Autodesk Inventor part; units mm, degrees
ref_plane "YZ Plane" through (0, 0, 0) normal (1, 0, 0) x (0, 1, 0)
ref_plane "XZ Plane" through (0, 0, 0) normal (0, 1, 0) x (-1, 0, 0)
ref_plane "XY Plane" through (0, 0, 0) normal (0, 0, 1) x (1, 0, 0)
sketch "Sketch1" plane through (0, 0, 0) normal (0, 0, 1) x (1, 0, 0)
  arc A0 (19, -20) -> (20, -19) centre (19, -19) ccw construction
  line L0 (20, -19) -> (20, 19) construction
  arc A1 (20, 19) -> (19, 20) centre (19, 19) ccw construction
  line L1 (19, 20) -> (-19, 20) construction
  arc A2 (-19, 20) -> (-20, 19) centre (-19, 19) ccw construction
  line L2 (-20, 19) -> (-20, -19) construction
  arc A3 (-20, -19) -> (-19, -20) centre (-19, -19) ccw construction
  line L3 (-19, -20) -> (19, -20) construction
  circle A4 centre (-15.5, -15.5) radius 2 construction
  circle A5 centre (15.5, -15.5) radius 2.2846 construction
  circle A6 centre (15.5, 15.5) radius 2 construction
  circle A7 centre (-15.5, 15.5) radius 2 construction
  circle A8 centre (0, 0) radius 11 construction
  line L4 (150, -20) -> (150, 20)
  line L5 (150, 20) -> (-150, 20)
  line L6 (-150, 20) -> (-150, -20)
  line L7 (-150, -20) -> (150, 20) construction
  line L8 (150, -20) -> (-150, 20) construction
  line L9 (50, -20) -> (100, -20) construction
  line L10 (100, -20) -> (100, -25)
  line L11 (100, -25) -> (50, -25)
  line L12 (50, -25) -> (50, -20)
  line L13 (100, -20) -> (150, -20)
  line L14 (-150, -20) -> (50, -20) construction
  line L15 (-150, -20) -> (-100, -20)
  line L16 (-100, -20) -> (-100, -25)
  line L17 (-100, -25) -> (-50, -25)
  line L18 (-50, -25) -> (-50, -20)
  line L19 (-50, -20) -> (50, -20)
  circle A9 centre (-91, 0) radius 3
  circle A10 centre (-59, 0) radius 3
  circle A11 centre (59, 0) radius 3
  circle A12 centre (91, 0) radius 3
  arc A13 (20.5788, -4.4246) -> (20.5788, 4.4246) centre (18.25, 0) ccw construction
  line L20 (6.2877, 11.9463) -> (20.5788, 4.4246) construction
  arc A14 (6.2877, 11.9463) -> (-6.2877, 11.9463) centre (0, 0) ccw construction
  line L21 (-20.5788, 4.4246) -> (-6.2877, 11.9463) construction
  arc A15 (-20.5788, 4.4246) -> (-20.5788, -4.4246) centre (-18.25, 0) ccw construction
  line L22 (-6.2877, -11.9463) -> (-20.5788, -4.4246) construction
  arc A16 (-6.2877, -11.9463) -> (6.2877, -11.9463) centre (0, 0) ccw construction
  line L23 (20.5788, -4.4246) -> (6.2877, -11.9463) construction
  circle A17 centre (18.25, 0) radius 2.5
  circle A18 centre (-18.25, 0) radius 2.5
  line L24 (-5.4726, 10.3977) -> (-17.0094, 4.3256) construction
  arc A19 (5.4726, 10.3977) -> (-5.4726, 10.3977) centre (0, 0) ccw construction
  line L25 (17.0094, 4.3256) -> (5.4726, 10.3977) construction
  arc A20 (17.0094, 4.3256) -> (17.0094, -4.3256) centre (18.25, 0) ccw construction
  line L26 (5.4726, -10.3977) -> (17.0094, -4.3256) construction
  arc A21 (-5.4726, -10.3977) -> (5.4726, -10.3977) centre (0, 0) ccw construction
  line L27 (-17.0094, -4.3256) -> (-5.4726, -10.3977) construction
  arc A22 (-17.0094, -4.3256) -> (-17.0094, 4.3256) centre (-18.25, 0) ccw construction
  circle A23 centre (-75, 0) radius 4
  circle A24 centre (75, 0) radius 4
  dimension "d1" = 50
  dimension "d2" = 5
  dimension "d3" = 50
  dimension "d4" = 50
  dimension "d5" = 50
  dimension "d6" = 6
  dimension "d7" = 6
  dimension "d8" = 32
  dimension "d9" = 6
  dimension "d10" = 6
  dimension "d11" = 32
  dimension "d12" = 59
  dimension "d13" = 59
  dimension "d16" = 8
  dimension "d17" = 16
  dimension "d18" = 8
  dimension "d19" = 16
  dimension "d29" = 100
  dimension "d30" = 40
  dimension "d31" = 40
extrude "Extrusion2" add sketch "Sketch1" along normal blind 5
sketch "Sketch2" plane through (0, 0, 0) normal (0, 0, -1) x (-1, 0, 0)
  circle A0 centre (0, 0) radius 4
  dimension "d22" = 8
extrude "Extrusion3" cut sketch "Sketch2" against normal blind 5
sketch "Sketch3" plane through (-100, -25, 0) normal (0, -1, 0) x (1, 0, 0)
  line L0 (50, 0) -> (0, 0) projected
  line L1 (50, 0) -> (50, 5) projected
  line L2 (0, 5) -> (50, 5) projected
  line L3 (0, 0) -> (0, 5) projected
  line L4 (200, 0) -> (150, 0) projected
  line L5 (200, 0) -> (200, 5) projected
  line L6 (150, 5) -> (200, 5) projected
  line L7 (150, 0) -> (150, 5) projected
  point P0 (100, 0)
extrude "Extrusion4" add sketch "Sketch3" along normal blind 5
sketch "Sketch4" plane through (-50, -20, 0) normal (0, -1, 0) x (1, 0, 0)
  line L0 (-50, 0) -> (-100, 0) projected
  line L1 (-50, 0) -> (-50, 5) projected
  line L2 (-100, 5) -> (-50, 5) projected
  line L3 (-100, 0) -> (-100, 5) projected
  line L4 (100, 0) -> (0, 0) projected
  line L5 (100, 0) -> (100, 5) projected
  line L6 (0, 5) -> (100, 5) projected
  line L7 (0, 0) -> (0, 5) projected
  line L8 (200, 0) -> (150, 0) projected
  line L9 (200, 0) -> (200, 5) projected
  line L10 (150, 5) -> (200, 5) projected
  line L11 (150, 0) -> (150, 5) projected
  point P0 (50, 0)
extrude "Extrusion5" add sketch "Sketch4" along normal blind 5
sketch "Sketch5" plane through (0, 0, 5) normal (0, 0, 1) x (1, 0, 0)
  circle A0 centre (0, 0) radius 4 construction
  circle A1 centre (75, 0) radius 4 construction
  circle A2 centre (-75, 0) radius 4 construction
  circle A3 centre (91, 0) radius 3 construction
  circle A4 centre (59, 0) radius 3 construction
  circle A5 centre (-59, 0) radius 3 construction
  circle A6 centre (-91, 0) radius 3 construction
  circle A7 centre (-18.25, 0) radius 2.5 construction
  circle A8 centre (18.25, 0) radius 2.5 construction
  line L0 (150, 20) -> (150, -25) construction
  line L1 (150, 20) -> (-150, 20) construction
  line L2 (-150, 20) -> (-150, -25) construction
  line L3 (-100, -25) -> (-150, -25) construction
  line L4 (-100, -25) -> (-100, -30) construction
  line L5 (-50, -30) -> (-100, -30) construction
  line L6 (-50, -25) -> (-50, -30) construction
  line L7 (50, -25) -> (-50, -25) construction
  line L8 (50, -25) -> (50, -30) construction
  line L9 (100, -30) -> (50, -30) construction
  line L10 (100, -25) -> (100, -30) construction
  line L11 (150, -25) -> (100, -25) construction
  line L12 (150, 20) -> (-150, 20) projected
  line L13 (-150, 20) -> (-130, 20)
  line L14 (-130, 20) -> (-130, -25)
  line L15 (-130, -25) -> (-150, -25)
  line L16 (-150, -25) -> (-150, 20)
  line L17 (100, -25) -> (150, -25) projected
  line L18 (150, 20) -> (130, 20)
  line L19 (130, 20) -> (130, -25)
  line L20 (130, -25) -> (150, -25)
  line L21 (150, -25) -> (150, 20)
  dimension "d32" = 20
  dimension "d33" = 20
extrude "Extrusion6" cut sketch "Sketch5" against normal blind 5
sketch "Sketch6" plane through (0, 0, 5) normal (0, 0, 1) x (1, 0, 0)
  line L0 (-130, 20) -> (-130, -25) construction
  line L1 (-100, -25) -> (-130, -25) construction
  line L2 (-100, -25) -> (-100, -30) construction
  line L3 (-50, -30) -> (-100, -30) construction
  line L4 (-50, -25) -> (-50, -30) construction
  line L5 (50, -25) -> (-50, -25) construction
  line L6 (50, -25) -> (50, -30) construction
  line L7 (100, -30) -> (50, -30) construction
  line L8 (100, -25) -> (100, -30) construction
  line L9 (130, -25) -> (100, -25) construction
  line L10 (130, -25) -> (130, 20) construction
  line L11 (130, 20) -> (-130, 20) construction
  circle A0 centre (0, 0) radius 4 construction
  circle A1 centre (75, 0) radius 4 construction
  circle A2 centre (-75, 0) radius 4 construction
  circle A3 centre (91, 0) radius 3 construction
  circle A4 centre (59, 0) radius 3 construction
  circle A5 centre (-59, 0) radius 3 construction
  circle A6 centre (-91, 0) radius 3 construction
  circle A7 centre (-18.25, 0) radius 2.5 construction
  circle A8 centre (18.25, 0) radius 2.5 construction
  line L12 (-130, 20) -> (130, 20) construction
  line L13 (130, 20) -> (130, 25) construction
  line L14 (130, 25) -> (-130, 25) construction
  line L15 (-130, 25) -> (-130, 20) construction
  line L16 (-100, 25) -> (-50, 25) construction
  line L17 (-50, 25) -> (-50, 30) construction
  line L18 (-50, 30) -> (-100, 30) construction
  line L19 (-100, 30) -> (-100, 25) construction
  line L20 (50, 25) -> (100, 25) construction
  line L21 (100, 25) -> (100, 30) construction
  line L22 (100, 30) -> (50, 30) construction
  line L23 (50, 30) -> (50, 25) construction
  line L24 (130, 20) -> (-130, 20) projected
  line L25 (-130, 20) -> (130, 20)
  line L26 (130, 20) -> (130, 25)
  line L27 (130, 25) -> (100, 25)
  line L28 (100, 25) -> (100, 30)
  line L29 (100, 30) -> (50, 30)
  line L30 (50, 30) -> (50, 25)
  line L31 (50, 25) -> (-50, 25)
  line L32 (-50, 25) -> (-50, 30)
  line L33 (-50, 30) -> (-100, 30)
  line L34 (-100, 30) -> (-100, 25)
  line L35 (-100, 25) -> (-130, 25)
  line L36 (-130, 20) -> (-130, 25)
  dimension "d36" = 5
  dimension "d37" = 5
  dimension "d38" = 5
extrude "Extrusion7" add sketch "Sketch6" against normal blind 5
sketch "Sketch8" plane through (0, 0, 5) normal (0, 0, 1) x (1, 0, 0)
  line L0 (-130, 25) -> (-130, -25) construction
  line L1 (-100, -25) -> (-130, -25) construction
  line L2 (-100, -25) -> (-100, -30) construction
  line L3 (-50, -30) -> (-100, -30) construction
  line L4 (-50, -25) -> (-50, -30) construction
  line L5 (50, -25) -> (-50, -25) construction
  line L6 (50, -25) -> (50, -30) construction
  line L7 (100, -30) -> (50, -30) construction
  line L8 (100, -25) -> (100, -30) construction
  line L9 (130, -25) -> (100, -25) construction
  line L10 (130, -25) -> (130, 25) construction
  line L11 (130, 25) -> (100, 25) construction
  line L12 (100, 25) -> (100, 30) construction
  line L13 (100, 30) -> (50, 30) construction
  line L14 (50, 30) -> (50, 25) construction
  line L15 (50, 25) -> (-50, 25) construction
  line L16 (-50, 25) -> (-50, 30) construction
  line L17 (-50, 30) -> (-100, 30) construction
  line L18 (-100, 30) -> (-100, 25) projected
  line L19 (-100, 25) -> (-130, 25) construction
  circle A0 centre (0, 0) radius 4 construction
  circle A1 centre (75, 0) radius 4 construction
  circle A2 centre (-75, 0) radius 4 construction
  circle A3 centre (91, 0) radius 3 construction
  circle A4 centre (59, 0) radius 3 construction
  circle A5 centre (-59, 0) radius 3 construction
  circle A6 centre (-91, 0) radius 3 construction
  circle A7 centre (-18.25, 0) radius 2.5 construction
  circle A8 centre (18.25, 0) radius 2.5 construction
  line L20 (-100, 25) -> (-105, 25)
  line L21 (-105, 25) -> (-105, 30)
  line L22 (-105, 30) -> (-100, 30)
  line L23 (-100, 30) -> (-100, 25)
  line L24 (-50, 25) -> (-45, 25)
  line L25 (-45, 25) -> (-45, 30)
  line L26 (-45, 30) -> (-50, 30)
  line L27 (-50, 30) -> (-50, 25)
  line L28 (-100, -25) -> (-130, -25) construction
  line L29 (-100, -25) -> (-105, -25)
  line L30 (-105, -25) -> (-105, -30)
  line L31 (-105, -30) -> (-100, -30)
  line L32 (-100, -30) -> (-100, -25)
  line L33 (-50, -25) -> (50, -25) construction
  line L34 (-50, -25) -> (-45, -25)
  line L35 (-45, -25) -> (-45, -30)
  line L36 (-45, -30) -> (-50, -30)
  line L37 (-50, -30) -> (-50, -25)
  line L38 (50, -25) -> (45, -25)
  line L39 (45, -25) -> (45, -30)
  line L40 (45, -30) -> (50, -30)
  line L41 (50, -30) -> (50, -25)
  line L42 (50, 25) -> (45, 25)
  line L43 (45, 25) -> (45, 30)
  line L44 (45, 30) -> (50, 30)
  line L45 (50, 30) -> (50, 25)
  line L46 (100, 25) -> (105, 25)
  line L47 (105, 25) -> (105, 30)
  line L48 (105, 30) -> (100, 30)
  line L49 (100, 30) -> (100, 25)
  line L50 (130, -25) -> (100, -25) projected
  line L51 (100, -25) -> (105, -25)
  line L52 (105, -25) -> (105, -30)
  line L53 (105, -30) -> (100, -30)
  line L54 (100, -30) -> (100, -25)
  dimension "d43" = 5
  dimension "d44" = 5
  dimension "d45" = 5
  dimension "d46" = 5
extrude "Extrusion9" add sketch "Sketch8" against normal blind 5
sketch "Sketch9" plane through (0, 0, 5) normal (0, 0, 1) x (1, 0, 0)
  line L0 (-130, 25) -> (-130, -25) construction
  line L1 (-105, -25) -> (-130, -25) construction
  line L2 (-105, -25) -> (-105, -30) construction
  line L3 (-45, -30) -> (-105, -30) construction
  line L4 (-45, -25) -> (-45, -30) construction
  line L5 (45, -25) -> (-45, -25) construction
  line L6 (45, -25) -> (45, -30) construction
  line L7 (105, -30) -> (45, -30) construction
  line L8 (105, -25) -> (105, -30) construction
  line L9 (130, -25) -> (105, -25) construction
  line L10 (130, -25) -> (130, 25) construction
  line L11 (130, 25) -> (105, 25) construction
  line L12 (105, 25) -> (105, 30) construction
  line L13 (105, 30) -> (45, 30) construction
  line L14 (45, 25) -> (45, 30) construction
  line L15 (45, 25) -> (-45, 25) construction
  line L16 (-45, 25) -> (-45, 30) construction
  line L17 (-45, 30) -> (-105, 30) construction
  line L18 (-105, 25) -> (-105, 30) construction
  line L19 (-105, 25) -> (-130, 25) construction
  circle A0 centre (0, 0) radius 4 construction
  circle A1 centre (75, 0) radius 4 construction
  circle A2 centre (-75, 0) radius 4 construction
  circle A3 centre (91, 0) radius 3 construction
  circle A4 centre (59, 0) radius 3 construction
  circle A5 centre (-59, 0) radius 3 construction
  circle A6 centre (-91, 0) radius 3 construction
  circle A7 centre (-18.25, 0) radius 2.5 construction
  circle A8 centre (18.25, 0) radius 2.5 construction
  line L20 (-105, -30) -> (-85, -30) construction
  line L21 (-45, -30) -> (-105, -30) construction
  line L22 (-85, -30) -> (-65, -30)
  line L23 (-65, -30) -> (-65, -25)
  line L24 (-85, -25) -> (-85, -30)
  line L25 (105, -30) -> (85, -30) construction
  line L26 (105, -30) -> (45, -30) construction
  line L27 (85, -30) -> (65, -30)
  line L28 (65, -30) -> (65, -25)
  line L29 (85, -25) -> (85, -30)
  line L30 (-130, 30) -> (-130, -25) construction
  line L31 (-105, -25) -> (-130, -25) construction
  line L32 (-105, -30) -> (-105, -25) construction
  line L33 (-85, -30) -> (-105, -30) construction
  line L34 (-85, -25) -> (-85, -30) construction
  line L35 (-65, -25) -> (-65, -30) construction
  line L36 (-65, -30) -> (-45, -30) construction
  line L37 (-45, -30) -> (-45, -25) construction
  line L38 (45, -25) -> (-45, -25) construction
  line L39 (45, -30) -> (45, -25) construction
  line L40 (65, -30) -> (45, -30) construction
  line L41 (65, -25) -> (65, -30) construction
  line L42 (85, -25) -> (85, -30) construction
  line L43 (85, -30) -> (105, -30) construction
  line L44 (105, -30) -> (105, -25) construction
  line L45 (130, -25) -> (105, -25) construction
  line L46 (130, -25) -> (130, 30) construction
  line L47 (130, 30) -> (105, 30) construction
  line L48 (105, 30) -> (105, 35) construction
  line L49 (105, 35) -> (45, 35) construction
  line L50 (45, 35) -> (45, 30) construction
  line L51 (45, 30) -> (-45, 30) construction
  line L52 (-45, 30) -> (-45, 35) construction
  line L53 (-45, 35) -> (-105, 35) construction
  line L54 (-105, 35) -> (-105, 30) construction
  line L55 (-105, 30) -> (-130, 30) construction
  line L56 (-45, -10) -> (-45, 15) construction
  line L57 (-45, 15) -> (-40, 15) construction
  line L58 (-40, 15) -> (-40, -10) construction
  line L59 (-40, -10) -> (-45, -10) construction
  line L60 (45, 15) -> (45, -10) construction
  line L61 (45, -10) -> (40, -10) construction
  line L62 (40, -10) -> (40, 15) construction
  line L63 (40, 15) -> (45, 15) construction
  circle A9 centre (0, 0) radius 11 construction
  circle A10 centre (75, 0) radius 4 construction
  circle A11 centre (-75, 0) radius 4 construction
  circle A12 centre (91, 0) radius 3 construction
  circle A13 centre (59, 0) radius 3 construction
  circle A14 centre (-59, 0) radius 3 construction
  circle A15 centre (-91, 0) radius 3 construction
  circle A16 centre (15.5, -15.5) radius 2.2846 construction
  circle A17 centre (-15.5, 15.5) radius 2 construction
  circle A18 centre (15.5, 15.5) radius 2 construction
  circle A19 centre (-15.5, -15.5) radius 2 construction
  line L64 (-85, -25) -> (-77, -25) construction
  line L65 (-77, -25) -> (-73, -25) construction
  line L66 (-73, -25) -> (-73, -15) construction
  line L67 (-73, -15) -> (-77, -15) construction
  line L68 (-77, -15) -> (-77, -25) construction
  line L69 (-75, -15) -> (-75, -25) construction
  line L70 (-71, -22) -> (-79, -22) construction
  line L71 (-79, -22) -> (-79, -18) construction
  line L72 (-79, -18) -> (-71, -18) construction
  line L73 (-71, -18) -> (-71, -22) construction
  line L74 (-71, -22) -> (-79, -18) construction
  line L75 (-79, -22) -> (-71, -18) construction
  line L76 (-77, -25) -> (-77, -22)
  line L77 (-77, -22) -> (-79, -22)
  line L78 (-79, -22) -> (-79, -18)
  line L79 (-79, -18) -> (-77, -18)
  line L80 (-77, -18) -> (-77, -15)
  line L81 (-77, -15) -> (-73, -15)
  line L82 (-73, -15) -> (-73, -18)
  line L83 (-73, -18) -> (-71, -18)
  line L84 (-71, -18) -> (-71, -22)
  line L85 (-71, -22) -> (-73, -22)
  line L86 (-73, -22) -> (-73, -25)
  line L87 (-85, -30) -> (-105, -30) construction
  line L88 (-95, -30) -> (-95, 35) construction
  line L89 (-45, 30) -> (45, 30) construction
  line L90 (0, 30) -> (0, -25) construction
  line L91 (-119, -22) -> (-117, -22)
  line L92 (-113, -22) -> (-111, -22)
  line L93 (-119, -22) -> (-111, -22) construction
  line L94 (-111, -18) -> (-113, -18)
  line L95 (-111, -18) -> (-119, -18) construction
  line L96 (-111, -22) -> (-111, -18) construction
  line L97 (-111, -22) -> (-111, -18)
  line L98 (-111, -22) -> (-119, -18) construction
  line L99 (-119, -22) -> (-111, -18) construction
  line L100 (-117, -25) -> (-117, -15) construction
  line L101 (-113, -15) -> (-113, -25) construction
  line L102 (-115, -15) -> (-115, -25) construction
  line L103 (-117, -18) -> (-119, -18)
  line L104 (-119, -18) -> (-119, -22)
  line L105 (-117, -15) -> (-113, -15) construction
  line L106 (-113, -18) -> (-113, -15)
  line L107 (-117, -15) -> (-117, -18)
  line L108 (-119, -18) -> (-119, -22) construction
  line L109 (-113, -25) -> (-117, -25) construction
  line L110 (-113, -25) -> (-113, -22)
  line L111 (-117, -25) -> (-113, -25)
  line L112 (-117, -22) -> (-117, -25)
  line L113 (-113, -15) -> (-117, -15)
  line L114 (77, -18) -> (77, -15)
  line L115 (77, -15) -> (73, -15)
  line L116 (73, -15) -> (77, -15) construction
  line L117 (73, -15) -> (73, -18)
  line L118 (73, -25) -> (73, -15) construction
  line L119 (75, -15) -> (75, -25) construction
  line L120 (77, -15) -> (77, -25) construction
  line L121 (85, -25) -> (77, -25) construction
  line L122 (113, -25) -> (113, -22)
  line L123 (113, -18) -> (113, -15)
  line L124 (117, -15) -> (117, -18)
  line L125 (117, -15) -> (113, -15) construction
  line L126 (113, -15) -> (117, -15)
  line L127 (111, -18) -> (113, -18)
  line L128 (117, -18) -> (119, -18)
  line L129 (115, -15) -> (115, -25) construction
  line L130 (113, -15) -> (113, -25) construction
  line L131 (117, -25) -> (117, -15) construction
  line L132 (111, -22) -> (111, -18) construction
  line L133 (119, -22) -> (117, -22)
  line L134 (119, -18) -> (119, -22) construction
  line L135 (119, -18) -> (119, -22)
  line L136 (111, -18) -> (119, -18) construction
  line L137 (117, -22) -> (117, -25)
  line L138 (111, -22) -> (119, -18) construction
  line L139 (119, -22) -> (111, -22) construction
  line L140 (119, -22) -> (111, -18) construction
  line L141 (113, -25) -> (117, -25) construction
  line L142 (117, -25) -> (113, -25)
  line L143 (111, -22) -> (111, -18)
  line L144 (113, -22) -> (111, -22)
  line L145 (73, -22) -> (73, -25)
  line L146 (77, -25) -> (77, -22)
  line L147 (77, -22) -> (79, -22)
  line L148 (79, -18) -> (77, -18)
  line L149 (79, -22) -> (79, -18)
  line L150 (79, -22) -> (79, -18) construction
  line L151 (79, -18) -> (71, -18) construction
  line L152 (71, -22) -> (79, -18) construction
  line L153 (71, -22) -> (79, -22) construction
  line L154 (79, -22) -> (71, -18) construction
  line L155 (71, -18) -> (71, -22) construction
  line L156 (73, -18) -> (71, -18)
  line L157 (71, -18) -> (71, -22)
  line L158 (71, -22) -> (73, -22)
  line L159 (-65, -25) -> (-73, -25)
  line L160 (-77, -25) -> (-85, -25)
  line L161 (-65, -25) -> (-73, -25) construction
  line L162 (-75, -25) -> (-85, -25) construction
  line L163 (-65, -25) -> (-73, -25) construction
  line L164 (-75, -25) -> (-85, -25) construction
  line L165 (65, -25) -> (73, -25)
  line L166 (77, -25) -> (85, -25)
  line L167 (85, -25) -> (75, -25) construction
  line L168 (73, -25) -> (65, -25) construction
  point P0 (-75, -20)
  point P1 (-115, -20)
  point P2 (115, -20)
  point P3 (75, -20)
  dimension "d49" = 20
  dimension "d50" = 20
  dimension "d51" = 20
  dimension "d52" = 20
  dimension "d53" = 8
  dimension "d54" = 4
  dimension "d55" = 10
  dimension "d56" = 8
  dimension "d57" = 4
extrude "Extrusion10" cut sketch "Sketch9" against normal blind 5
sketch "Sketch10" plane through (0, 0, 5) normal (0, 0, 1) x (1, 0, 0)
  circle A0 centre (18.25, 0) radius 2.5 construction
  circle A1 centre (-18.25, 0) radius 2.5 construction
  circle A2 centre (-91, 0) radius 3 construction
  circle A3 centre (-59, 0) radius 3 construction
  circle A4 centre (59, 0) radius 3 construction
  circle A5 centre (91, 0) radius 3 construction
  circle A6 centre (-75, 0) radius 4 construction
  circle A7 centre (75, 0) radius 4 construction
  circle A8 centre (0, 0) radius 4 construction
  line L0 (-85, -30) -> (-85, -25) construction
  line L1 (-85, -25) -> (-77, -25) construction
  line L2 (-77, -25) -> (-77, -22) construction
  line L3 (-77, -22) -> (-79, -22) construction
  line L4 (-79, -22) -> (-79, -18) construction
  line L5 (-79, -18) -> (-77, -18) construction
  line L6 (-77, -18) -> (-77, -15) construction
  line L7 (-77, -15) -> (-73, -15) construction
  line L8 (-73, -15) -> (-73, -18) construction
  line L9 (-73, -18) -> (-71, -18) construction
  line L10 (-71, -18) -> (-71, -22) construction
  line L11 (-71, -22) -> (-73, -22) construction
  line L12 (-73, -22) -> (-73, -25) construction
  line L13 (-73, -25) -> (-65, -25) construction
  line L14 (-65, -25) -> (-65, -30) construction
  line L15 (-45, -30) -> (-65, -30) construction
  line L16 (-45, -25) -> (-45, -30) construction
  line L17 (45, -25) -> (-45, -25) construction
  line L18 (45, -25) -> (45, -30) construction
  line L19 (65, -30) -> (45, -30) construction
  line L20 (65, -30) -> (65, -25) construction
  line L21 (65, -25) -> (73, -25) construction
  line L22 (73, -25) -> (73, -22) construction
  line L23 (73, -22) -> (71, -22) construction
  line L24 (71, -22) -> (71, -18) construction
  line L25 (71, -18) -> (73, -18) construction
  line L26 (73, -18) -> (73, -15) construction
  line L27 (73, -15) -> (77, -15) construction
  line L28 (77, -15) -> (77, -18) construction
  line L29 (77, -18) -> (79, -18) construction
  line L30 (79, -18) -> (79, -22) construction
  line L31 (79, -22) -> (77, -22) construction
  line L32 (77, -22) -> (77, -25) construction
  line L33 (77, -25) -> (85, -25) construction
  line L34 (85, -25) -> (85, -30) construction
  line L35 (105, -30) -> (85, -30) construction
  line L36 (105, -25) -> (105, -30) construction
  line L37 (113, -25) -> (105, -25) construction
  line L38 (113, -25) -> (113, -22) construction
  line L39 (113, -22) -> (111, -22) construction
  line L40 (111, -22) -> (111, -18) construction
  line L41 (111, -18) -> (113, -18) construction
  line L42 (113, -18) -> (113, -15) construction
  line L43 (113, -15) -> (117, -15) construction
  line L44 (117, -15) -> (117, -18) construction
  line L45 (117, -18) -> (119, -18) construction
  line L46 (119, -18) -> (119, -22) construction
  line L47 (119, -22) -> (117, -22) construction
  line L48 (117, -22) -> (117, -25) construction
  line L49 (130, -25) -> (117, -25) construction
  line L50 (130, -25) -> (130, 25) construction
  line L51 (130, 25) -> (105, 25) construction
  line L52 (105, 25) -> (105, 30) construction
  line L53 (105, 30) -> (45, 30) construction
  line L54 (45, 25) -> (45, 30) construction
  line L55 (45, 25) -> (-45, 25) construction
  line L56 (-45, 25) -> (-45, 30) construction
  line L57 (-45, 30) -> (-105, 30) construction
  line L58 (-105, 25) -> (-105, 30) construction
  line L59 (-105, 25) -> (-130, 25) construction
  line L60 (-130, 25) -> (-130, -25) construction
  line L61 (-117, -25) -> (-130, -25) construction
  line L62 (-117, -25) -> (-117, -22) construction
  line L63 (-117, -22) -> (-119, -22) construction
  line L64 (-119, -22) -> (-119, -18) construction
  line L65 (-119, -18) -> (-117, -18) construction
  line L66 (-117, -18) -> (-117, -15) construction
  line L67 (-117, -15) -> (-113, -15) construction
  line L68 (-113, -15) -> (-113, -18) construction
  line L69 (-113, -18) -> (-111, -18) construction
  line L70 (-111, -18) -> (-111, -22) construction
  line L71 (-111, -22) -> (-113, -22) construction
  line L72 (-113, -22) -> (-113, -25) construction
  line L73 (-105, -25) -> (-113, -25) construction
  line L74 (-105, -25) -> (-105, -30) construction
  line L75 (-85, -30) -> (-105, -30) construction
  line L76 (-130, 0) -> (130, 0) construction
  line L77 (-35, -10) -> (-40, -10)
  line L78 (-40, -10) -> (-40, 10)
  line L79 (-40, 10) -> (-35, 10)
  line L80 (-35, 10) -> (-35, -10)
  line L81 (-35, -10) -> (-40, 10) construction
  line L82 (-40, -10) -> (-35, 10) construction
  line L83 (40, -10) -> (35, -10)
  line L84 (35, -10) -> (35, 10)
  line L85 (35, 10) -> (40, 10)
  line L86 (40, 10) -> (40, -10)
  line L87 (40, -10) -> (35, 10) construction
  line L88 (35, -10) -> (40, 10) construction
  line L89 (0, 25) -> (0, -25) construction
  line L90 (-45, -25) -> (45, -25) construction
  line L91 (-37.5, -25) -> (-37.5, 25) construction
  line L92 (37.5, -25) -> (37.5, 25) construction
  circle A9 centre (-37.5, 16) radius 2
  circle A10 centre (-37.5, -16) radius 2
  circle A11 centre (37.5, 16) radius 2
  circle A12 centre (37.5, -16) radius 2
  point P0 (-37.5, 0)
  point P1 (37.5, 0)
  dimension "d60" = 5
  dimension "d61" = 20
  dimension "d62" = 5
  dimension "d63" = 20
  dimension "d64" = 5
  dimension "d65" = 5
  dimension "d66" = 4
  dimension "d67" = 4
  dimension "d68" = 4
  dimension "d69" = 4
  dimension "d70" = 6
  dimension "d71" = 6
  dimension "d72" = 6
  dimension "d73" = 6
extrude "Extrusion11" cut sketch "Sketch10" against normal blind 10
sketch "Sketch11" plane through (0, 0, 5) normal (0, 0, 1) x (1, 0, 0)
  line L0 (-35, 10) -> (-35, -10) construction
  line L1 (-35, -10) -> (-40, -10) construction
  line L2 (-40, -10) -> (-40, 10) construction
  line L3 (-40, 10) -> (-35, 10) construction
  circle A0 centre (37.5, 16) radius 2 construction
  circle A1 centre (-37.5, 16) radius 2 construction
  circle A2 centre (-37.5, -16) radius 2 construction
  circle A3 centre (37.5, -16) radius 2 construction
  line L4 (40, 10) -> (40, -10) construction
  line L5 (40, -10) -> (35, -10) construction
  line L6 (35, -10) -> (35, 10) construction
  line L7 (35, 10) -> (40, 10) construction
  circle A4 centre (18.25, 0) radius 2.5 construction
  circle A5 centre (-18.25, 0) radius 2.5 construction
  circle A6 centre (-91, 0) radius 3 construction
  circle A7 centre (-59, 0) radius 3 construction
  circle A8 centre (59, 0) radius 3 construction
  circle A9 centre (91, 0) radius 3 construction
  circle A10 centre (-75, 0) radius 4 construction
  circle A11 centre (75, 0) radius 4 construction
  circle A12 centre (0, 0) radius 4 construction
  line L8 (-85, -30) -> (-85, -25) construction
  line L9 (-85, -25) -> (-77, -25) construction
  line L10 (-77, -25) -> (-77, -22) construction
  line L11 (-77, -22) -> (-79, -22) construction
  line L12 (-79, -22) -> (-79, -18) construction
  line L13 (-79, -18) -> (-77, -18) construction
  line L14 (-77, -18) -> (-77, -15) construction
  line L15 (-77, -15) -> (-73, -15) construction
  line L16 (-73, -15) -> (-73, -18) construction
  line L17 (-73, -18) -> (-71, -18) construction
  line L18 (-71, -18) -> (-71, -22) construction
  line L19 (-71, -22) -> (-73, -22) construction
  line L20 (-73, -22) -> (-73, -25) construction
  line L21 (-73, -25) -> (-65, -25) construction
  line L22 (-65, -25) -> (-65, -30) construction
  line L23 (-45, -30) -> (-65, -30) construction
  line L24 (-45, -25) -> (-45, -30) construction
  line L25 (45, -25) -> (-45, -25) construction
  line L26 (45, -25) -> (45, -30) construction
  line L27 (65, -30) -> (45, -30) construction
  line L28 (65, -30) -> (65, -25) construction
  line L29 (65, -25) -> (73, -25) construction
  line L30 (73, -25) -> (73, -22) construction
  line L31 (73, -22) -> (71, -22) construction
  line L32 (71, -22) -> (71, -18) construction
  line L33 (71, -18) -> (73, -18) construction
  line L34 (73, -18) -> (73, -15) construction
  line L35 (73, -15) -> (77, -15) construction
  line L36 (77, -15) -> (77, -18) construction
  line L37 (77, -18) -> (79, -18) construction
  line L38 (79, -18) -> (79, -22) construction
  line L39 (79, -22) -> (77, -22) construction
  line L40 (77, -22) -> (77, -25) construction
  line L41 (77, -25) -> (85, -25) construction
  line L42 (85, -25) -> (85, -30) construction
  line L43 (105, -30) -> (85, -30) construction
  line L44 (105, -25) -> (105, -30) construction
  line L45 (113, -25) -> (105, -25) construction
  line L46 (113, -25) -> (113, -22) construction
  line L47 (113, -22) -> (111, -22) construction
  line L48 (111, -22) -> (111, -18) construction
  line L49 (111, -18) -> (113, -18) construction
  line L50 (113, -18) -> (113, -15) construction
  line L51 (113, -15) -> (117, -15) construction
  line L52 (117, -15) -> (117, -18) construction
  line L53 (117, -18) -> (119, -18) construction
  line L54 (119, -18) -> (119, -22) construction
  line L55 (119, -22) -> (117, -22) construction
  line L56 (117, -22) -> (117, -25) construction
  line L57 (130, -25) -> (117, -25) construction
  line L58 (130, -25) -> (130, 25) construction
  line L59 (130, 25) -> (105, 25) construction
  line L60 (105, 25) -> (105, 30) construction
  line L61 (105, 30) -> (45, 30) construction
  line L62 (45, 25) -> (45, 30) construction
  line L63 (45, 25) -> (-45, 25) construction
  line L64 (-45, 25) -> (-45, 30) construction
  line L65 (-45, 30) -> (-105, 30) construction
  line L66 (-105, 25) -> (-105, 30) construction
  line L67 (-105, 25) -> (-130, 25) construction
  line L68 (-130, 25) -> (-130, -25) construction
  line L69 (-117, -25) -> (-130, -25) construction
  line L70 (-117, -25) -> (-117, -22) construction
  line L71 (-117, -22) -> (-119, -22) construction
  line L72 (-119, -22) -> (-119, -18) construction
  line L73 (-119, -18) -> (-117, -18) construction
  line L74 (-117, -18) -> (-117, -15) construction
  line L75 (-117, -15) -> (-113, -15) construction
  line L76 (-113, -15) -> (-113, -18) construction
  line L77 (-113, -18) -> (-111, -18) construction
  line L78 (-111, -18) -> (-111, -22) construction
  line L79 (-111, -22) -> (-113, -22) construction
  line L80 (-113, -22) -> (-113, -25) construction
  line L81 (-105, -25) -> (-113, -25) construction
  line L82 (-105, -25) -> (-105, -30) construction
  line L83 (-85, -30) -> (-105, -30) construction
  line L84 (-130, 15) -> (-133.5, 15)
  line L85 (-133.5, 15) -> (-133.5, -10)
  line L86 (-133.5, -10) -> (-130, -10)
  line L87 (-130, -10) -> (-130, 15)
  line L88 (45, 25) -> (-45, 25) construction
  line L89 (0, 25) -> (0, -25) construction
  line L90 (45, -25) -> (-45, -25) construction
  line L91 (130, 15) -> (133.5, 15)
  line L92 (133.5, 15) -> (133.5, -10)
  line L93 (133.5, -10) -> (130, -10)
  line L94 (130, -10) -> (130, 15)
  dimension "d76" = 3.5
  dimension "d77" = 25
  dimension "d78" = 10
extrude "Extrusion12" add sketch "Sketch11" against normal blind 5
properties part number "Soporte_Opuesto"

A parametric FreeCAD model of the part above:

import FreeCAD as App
import Part
import Sketcher

V = App.Vector


def add_polygon(sketch, points):
    """Adds a closed chain of lines whose ends are joined by coincident constraints."""
    first, n = sketch.GeometryCount, len(points)
    for a, b in zip(points, points[1:] + points[:1]):
        sketch.addGeometry(Part.LineSegment(App.Vector(*a, 0), App.Vector(*b, 0)), False)
    for i in range(n):
        sketch.addConstraint(Sketcher.Constraint("Coincident", first + i, 2, first + (i + 1) % n, 1))

doc = App.newDocument("Part")
params = doc.addObject("Spreadsheet::Sheet", "Params")
for row, (alias, value) in enumerate([
    ("sketch1_diameter", "6 mm"),
    ("sketch1_diameter2", "8 mm"),
    ("sketch1_diameter3", "5 mm"),
    ("sketch1_width", "50 mm"),
    ("sketch1_width2", "100 mm"),
    ("pad1_length", "5 mm"),
    ("sketch2_diameter", "8 mm"),
    ("pocket1_length", "5 mm"),
    ("sketch3_width", "50 mm"),
    ("sketch3_height", "5 mm"),
    ("pad2_length", "5 mm"),
    ("sketch4_width", "50 mm"),
    ("sketch4_width2", "100 mm"),
    ("sketch4_height", "5 mm"),
    ("pad3_length", "5 mm"),
    ("sketch5_width", "20 mm"),
    ("sketch5_height", "45 mm"),
    ("pocket2_length", "5 mm"),
    ("sketch6_height", "5 mm"),
    ("sketch6_width", "260 mm"),
    ("sketch6_width2", "30 mm"),
    ("sketch6_width3", "50 mm"),
    ("pad4_length", "5 mm"),
    ("sketch7_width", "5 mm"),
    ("pad5_length", "5 mm"),
    ("sketch8_width", "20 mm"),
    ("sketch8_width2", "8 mm"),
    ("pocket3_length", "5 mm"),
    ("sketch9_diameter", "4 mm"),
    ("sketch9_width", "5 mm"),
    ("sketch9_height", "20 mm"),
    ("pocket4_length", "10 mm"),
    ("sketch10_height", "25 mm"),
    ("sketch10_width", "3.5 mm"),
    ("pad6_length", "5 mm"),
], start=1):
    params.set(f"A{row}", alias)
    params.set(f"B{row}", "=" + value)
    params.setAlias(f"B{row}", alias)

body = doc.addObject("PartDesign::Body", "Body")

# Sketch on XY plane
sketch1 = body.newObject("Sketcher::SketchObject", "Sketch")
sketch1.AttachmentSupport = (doc.getObject("XY_Plane"), [""])
sketch1.MapMode = "FlatFace"
add_polygon(sketch1, [(100, -20), (150, -20), (150, 20), (-150, 20), (-150, -20), (-100, -20), (-100, -25), (-50, -25), (-50, -20), (50, -20), (50, -25), (100, -25)])  # lines 0-11
sketch1.addGeometry(Part.Circle(V(-91, 0, 0), V(0, 0, 1), 3), False)  # 12
sketch1.addGeometry(Part.Circle(V(-75, 0, 0), V(0, 0, 1), 4), False)  # 13
sketch1.addGeometry(Part.Circle(V(-59, 0, 0), V(0, 0, 1), 3), False)  # 14
sketch1.addGeometry(Part.Circle(V(-18.2, 0, 0), V(0, 0, 1), 2.5), False)  # 15
sketch1.addGeometry(Part.Circle(V(18.2, 0, 0), V(0, 0, 1), 2.5), False)  # 16
sketch1.addGeometry(Part.Circle(V(59, 0, 0), V(0, 0, 1), 3), False)  # 17
sketch1.addGeometry(Part.Circle(V(75, 0, 0), V(0, 0, 1), 4), False)  # 18
sketch1.addGeometry(Part.Circle(V(91, 0, 0), V(0, 0, 1), 3), False)  # 19
sketch1.addConstraint([
    Sketcher.Constraint("Horizontal", 0),
    Sketcher.Constraint("Vertical", 1),
    Sketcher.Constraint("Horizontal", 2),
    Sketcher.Constraint("Vertical", 3),
    Sketcher.Constraint("Horizontal", 4),
    Sketcher.Constraint("Vertical", 5),
    Sketcher.Constraint("Horizontal", 6),
    Sketcher.Constraint("Vertical", 7),
    Sketcher.Constraint("Horizontal", 8),
    Sketcher.Constraint("Vertical", 9),
    Sketcher.Constraint("Horizontal", 10),
    Sketcher.Constraint("Vertical", 11),
    Sketcher.Constraint("Equal", 12, 14),
    Sketcher.Constraint("Equal", 15, 16),
    Sketcher.Constraint("Equal", 14, 17),
    Sketcher.Constraint("Equal", 13, 18),
    Sketcher.Constraint("Equal", 17, 19),
    Sketcher.Constraint("Symmetric", 15, 3, 16, 3, -1, 1),
    Sketcher.Constraint("Symmetric", 14, 3, 17, 3, -1, 1),
    Sketcher.Constraint("Symmetric", 13, 3, 18, 3, -1, 1),
    Sketcher.Constraint("Symmetric", 12, 3, 19, 3, -1, 1),
    Sketcher.Constraint("Symmetric", 0, 2, 2, 2, -1, 1),
    Sketcher.Constraint("Symmetric", 6, 2, 9, 2, -2),
    Sketcher.Constraint("Symmetric", 4, 2, 11, 2, -2),
    Sketcher.Constraint("PointOnObject", 12, 3, -1),
    Sketcher.Constraint("PointOnObject", 13, 3, -1),
    Sketcher.Constraint("PointOnObject", 14, 3, -1),
    Sketcher.Constraint("PointOnObject", 15, 3, -1),
    Sketcher.Constraint("Horizontal", 4, 2, 7, 2),
    Sketcher.Constraint("Equal", 4, 6),
    Sketcher.Constraint("Diameter", 12, 6.0),
    Sketcher.Constraint("Diameter", 13, 8.0),
    Sketcher.Constraint("Diameter", 15, 5.0),
    Sketcher.Constraint("DistanceX", 0, 1, 0, 2, 50.0),
    Sketcher.Constraint("DistanceX", 8, 1, 8, 2, 100.0),
    Sketcher.Constraint("DistanceY", 1, 1, 1, 2, 40.0),
    Sketcher.Constraint("DistanceY", 5, 2, 5, 1, 5.0),
    Sketcher.Constraint("DistanceX", 14, 3, -1, 1, 59.0),
    Sketcher.Constraint("DistanceX", 12, 3, 13, 3, 16.0),
    Sketcher.Constraint("DistanceX", 13, 3, 14, 3, 16.0),
    Sketcher.Constraint("DistanceX", 15, 3, 16, 3, 36.5),
])
sketch1.setExpression("Constraints[42]", "Params.sketch1_diameter")
sketch1.setExpression("Constraints[43]", "Params.sketch1_diameter2")
sketch1.setExpression("Constraints[44]", "Params.sketch1_diameter3")
sketch1.setExpression("Constraints[45]", "Params.sketch1_width")
sketch1.setExpression("Constraints[46]", "Params.sketch1_width2")
pad1 = body.newObject("PartDesign::Pad", "Pad")
pad1.Profile = sketch1
pad1.setExpression("Length", "Params.pad1_length")

# Sketch on XY plane
sketch2 = body.newObject("Sketcher::SketchObject", "Sketch001")
sketch2.AttachmentSupport = (doc.getObject("XY_Plane"), [""])
sketch2.MapMode = "FlatFace"
sketch2.addGeometry(Part.Circle(V(0, 0, 0), V(0, 0, 1), 4), False)
sketch2.addConstraint([
    Sketcher.Constraint("Coincident", 0, 3, -1, 1),
    Sketcher.Constraint("Diameter", 0, 8.0),
])
sketch2.setExpression("Constraints[1]", "Params.sketch2_diameter")
pocket1 = body.newObject("PartDesign::Pocket", "Pocket")
pocket1.Profile = sketch2
pocket1.setExpression("Length", "Params.pocket1_length")
pocket1.Reversed = True

# Sketch on XZ plane
sketch3 = body.newObject("Sketcher::SketchObject", "Sketch002")
sketch3.AttachmentSupport = (doc.getObject("XZ_Plane"), [""])
sketch3.MapMode = "FlatFace"
sketch3.AttachmentOffset = App.Placement(V(0, 0, 25), App.Rotation())
add_polygon(sketch3, [(-100, 0), (-50, 0), (-50, 5), (-100, 5)])  # lines 0-3
add_polygon(sketch3, [(50, 0), (100, 0), (100, 5), (50, 5)])  # lines 4-7
sketch3.addConstraint([
    Sketcher.Constraint("Horizontal", 0),
    Sketcher.Constraint("Vertical", 1),
    Sketcher.Constraint("Horizontal", 2),
    Sketcher.Constraint("Vertical", 3),
    Sketcher.Constraint("Horizontal", 4),
    Sketcher.Constraint("Vertical", 5),
    Sketcher.Constraint("Horizontal", 6),
    Sketcher.Constraint("Vertical", 7),
    Sketcher.Constraint("Symmetric", 3, 2, 4, 2, -1, 1),
    Sketcher.Constraint("Symmetric", 1, 2, 6, 2, -2),
    Sketcher.Constraint("PointOnObject", 0, 2, -1),
    Sketcher.Constraint("DistanceX", 0, 1, 0, 2, 50.0),
    Sketcher.Constraint("DistanceY", 1, 1, 1, 2, 5.0),
    Sketcher.Constraint("DistanceX", 0, 2, -1, 1, 50.0),
])
sketch3.setExpression("Constraints[19]", "Params.sketch3_width")
sketch3.setExpression("Constraints[20]", "Params.sketch3_height")
pad2 = body.newObject("PartDesign::Pad", "Pad001")
pad2.Profile = sketch3
pad2.setExpression("Length", "Params.pad2_length")

# Sketch on XZ plane
sketch4 = body.newObject("Sketcher::SketchObject", "Sketch003")
sketch4.AttachmentSupport = (doc.getObject("XZ_Plane"), [""])
sketch4.MapMode = "FlatFace"
sketch4.AttachmentOffset = App.Placement(V(0, 0, 20), App.Rotation())
add_polygon(sketch4, [(-150, 0), (-100, 0), (-100, 5), (-150, 5)])  # lines 0-3
add_polygon(sketch4, [(-50, 0), (50, 0), (50, 5), (-50, 5)])  # lines 4-7
add_polygon(sketch4, [(100, 0), (150, 0), (150, 5), (100, 5)])  # lines 8-11
sketch4.addConstraint([
    Sketcher.Constraint("Horizontal", 0),
    Sketcher.Constraint("Vertical", 1),
    Sketcher.Constraint("Horizontal", 2),
    Sketcher.Constraint("Vertical", 3),
    Sketcher.Constraint("Horizontal", 4),
    Sketcher.Constraint("Vertical", 5),
    Sketcher.Constraint("Horizontal", 6),
    Sketcher.Constraint("Vertical", 7),
    Sketcher.Constraint("Horizontal", 8),
    Sketcher.Constraint("Vertical", 9),
    Sketcher.Constraint("Horizontal", 10),
    Sketcher.Constraint("Vertical", 11),
    Sketcher.Constraint("Symmetric", 4, 2, 7, 2, -1, 1),
    Sketcher.Constraint("Symmetric", 3, 2, 8, 2, -1, 1),
    Sketcher.Constraint("Symmetric", 1, 2, 10, 2, -2),
    Sketcher.Constraint("PointOnObject", 0, 2, -1),
    Sketcher.Constraint("Horizontal", 2, 2, 5, 2),
    Sketcher.Constraint("DistanceX", 0, 1, 0, 2, 50.0),
    Sketcher.Constraint("DistanceX", 4, 1, 4, 2, 100.0),
    Sketcher.Constraint("DistanceY", 1, 1, 1, 2, 5.0),
    Sketcher.Constraint("DistanceX", 0, 2, -1, 1, 100.0),
])
sketch4.setExpression("Constraints[29]", "Params.sketch4_width")
sketch4.setExpression("Constraints[30]", "Params.sketch4_width2")
sketch4.setExpression("Constraints[31]", "Params.sketch4_height")
pad3 = body.newObject("PartDesign::Pad", "Pad002")
pad3.Profile = sketch4
pad3.setExpression("Length", "Params.pad3_length")

# Sketch on XY plane
sketch5 = body.newObject("Sketcher::SketchObject", "Sketch004")
sketch5.AttachmentSupport = (doc.getObject("XY_Plane"), [""])
sketch5.MapMode = "FlatFace"
sketch5.AttachmentOffset = App.Placement(V(0, 0, 5), App.Rotation())
add_polygon(sketch5, [(150, -25), (150, 20), (130, 20), (130, -25)])  # lines 0-3
add_polygon(sketch5, [(-130, -25), (-130, 20), (-150, 20), (-150, -25)])  # lines 4-7
sketch5.addConstraint([
    Sketcher.Constraint("Vertical", 0),
    Sketcher.Constraint("Horizontal", 1),
    Sketcher.Constraint("Vertical", 2),
    Sketcher.Constraint("Horizontal", 3),
    Sketcher.Constraint("Vertical", 4),
    Sketcher.Constraint("Horizontal", 5),
    Sketcher.Constraint("Vertical", 6),
    Sketcher.Constraint("Horizontal", 7),
    Sketcher.Constraint("Symmetric", 1, 2, 4, 2, -2),
    Sketcher.Constraint("Symmetric", 3, 2, 6, 2, -2),
    Sketcher.Constraint("DistanceX", 1, 2, 1, 1, 20.0),
    Sketcher.Constraint("DistanceY", -1, 1, 0, 2, 20.0),
    Sketcher.Constraint("DistanceY", 0, 1, 0, 2, 45.0),
    Sketcher.Constraint("DistanceX", -1, 1, 0, 2, 150.0),
])
sketch5.setExpression("Constraints[18]", "Params.sketch5_width")
sketch5.setExpression("Constraints[20]", "Params.sketch5_height")
pocket2 = body.newObject("PartDesign::Pocket", "Pocket001")
pocket2.Profile = sketch5
pocket2.setExpression("Length", "Params.pocket2_length")

# Sketch on XY plane
sketch6 = body.newObject("Sketcher::SketchObject", "Sketch005")
sketch6.AttachmentSupport = (doc.getObject("XY_Plane"), [""])
sketch6.MapMode = "FlatFace"
sketch6.AttachmentOffset = App.Placement(V(0, 0, 5), App.Rotation())
add_polygon(sketch6, [(-130, 20), (130, 20), (130, 25), (100, 25), (100, 30), (50, 30), (50, 25), (-50, 25), (-50, 30), (-100, 30), (-100, 25), (-130, 25)])  # lines 0-11
sketch6.addConstraint([
    Sketcher.Constraint("Horizontal", 0),
    Sketcher.Constraint("Vertical", 1),
    Sketcher.Constraint("Horizontal", 2),
    Sketcher.Constraint("Vertical", 3),
    Sketcher.Constraint("Horizontal", 4),
    Sketcher.Constraint("Vertical", 5),
    Sketcher.Constraint("Horizontal", 6),
    Sketcher.Constraint("Vertical", 7),
    Sketcher.Constraint("Horizontal", 8),
    Sketcher.Constraint("Vertical", 9),
    Sketcher.Constraint("Horizontal", 10),
    Sketcher.Constraint("Vertical", 11),
    Sketcher.Constraint("Symmetric", 4, 2, 7, 2, -2),
    Sketcher.Constraint("Symmetric", 2, 2, 9, 2, -2),
    Sketcher.Constraint("Horizontal", 2, 2, 5, 2),
    Sketcher.Constraint("Equal", 2, 10),
    Sketcher.Constraint("Equal", 1, 3),
    Sketcher.Constraint("DistanceY", 1, 1, 1, 2, 5.0),
    Sketcher.Constraint("DistanceX", 0, 1, 0, 2, 260.0),
    Sketcher.Constraint("DistanceX", 2, 2, 2, 1, 30.0),
    Sketcher.Constraint("DistanceX", 4, 2, 4, 1, 50.0),
    Sketcher.Constraint("DistanceY", -1, 1, 0, 2, 20.0),
])
sketch6.setExpression("Constraints[29]", "Params.sketch6_height")
sketch6.setExpression("Constraints[30]", "Params.sketch6_width")
sketch6.setExpression("Constraints[31]", "Params.sketch6_width2")
sketch6.setExpression("Constraints[32]", "Params.sketch6_width3")
pad4 = body.newObject("PartDesign::Pad", "Pad003")
pad4.Profile = sketch6
pad4.setExpression("Length", "Params.pad4_length")
pad4.Reversed = True

# Sketch on XY plane
sketch7 = body.newObject("Sketcher::SketchObject", "Sketch006")
sketch7.AttachmentSupport = (doc.getObject("XY_Plane"), [""])
sketch7.MapMode = "FlatFace"
sketch7.AttachmentOffset = App.Placement(V(0, 0, 5), App.Rotation())
add_polygon(sketch7, [(-100, 25), (-100, 30), (-105, 30), (-105, 25)])  # lines 0-3
add_polygon(sketch7, [(-50, 30), (-50, 25), (-45, 25), (-45, 30)])  # lines 4-7
add_polygon(sketch7, [(-100, -30), (-100, -25), (-105, -25), (-105, -30)])  # lines 8-11
add_polygon(sketch7, [(-45, -25), (-50, -25), (-50, -30), (-45, -30)])  # lines 12-15
add_polygon(sketch7, [(50, -30), (50, -25), (45, -25), (45, -30)])  # lines 16-19
add_polygon(sketch7, [(45, 25), (50, 25), (50, 30), (45, 30)])  # lines 20-23
add_polygon(sketch7, [(100, 30), (100, 25), (105, 25), (105, 30)])  # lines 24-27
add_polygon(sketch7, [(105, -30), (105, -25), (100, -25), (100, -30)])  # lines 28-31
sketch7.addConstraint([
    Sketcher.Constraint("Vertical", 0),
    Sketcher.Constraint("Horizontal", 1),
    Sketcher.Constraint("Vertical", 2),
    Sketcher.Constraint("Horizontal", 3),
    Sketcher.Constraint("Vertical", 4),
    Sketcher.Constraint("Horizontal", 5),
    Sketcher.Constraint("Vertical", 6),
    Sketcher.Constraint("Horizontal", 7),
    Sketcher.Constraint("Vertical", 8),
    Sketcher.Constraint("Horizontal", 9),
    Sketcher.Constraint("Vertical", 10),
    Sketcher.Constraint("Horizontal", 11),
    Sketcher.Constraint("Horizontal", 12),
    Sketcher.Constraint("Vertical", 13),
    Sketcher.Constraint("Horizontal", 14),
    Sketcher.Constraint("Vertical", 15),
    Sketcher.Constraint("Vertical", 16),
    Sketcher.Constraint("Horizontal", 17),
    Sketcher.Constraint("Vertical", 18),
    Sketcher.Constraint("Horizontal", 19),
    Sketcher.Constraint("Horizontal", 20),
    Sketcher.Constraint("Vertical", 21),
    Sketcher.Constraint("Horizontal", 22),
    Sketcher.Constraint("Vertical", 23),
    Sketcher.Constraint("Vertical", 24),
    Sketcher.Constraint("Horizontal", 25),
    Sketcher.Constraint("Vertical", 26),
    Sketcher.Constraint("Horizontal", 27),
    Sketcher.Constraint("Vertical", 28),
    Sketcher.Constraint("Horizontal", 29),
    Sketcher.Constraint("Vertical", 30),
    Sketcher.Constraint("Horizontal", 31),
    Sketcher.Constraint("Symmetric", 4, 2, 16, 2, -1, 1),
    Sketcher.Constraint("Symmetric", 6, 2, 18, 2, -1, 1),
    Sketcher.Constraint("Symmetric", 12, 2, 20, 2, -1, 1),
    Sketcher.Constraint("Symmetric", 14, 2, 22, 2, -1, 1),
    Sketcher.Constraint("Symmetric", 8, 2, 24, 2, -1, 1),
    Sketcher.Constraint("Symmetric", 10, 2, 26, 2, -1, 1),
    Sketcher.Constraint("Symmetric", 2, 2, 28, 2, -1, 1),
    Sketcher.Constraint("Symmetric", 0, 2, 30, 2, -1, 1),
    Sketcher.Constraint("Symmetric", 12, 2, 16, 2, -2),
    Sketcher.Constraint("Symmetric", 14, 2, 18, 2, -2),
    Sketcher.Constraint("Symmetric", 3, 2, 24, 2, -2),
    Sketcher.Constraint("Symmetric", 1, 2, 26, 2, -2),
    Sketcher.Constraint("Horizontal", 3, 2, 4, 2),
    Sketcher.Constraint("Horizontal", 1, 2, 6, 2),
    Sketcher.Constraint("Equal", 3, 5),
    Sketcher.Constraint("Equal", 31, 0),
    Sketcher.Constraint("DistanceX", 1, 2, 1, 1, 5.0),
    Sketcher.Constraint("DistanceX", 0, 2, -1, 1, 100.0),
    Sketcher.Constraint("DistanceY", -1, 1, 0, 2, 30.0),
    Sketcher.Constraint("DistanceX", 4, 2, -1, 1, 50.0),
])
sketch7.setExpression("Constraints[80]", "Params.sketch7_width")
pad5 = body.newObject("PartDesign::Pad", "Pad004")
pad5.Profile = sketch7
pad5.setExpression("Length", "Params.pad5_length")
pad5.Reversed = True

# Sketch on XY plane
sketch8 = body.newObject("Sketcher::SketchObject", "Sketch007")
sketch8.AttachmentSupport = (doc.getObject("XY_Plane"), [""])
sketch8.MapMode = "FlatFace"
sketch8.AttachmentOffset = App.Placement(V(0, 0, 5), App.Rotation())
add_polygon(sketch8, [(-85, -25), (-85, -30), (-65, -30), (-65, -25), (-73, -25), (-73, -22), (-71, -22), (-71, -18), (-73, -18), (-73, -15), (-77, -15), (-77, -18), (-79, -18), (-79, -22), (-77, -22), (-77, -25)])  # lines 0-15
add_polygon(sketch8, [(65, -30), (85, -30), (85, -25), (77, -25), (77, -22), (79, -22), (79, -18), (77, -18), (77, -15), (73, -15), (73, -18), (71, -18), (71, -22), (73, -22), (73, -25), (65, -25)])  # lines 16-31
add_polygon(sketch8, [(-119, -18), (-119, -22), (-117, -22), (-117, -25), (-113, -25), (-113, -22), (-111, -22), (-111, -18), (-113, -18), (-113, -15), (-117, -15), (-117, -18)])  # lines 32-43
add_polygon(sketch8, [(113, -22), (113, -25), (117, -25), (117, -22), (119, -22), (119, -18), (117, -18), (117, -15), (113, -15), (113, -18), (111, -18), (111, -22)])  # lines 44-55
sketch8.addConstraint([
    Sketcher.Constraint("Vertical", 0),
    Sketcher.Constraint("Horizontal", 1),
    Sketcher.Constraint("Vertical", 2),
    Sketcher.Constraint("Horizontal", 3),
    Sketcher.Constraint("Vertical", 4),
    Sketcher.Constraint("Horizontal", 5),
    Sketcher.Constraint("Vertical", 6),
    Sketcher.Constraint("Horizontal", 7),
    Sketcher.Constraint("Vertical", 8),
    Sketcher.Constraint("Horizontal", 9),
    Sketcher.Constraint("Vertical", 10),
    Sketcher.Constraint("Horizontal", 11),
    Sketcher.Constraint("Vertical", 12),
    Sketcher.Constraint("Horizontal", 13),
    Sketcher.Constraint("Vertical", 14),
    Sketcher.Constraint("Horizontal", 15),
    Sketcher.Constraint("Horizontal", 16),
    Sketcher.Constraint("Vertical", 17),
    Sketcher.Constraint("Horizontal", 18),
    Sketcher.Constraint("Vertical", 19),
    Sketcher.Constraint("Horizontal", 20),
    Sketcher.Constraint("Vertical", 21),
    Sketcher.Constraint("Horizontal", 22),
    Sketcher.Constraint("Vertical", 23),
    Sketcher.Constraint("Horizontal", 24),
    Sketcher.Constraint("Vertical", 25),
    Sketcher.Constraint("Horizontal", 26),
    Sketcher.Constraint("Vertical", 27),
    Sketcher.Constraint("Horizontal", 28),
    Sketcher.Constraint("Vertical", 29),
    Sketcher.Constraint("Horizontal", 30),
    Sketcher.Constraint("Vertical", 31),
    Sketcher.Constraint("Vertical", 32),
    Sketcher.Constraint("Horizontal", 33),
    Sketcher.Constraint("Vertical", 34),
    Sketcher.Constraint("Horizontal", 35),
    Sketcher.Constraint("Vertical", 36),
    Sketcher.Constraint("Horizontal", 37),
    Sketcher.Constraint("Vertical", 38),
    Sketcher.Constraint("Horizontal", 39),
    Sketcher.Constraint("Vertical", 40),
    Sketcher.Constraint("Horizontal", 41),
    Sketcher.Constraint("Vertical", 42),
    Sketcher.Constraint("Horizontal", 43),
    Sketcher.Constraint("Vertical", 44),
    Sketcher.Constraint("Horizontal", 45),
    Sketcher.Constraint("Vertical", 46),
    Sketcher.Constraint("Horizontal", 47),
    Sketcher.Constraint("Vertical", 48),
    Sketcher.Constraint("Horizontal", 49),
    Sketcher.Constraint("Vertical", 50),
    Sketcher.Constraint("Horizontal", 51),
    Sketcher.Constraint("Vertical", 52),
    Sketcher.Constraint("Horizontal", 53),
    Sketcher.Constraint("Vertical", 54),
    Sketcher.Constraint("Horizontal", 55),
    Sketcher.Constraint("Symmetric", 0, 2, 16, 2, -2),
    Sketcher.Constraint("Symmetric", 14, 2, 18, 2, -2),
    Sketcher.Constraint("Symmetric", 12, 2, 20, 2, -2),
    Sketcher.Constraint("Symmetric", 10, 2, 22, 2, -2),
    Sketcher.Constraint("Symmetric", 8, 2, 24, 2, -2),
    Sketcher.Constraint("Symmetric", 6, 2, 26, 2, -2),
    Sketcher.Constraint("Symmetric", 4, 2, 28, 2, -2),
    Sketcher.Constraint("Symmetric", 2, 2, 30, 2, -2),
    Sketcher.Constraint("Symmetric", 35, 2, 44, 2, -2),
    Sketcher.Constraint("Symmetric", 33, 2, 46, 2, -2),
    Sketcher.Constraint("Symmetric", 43, 2, 48, 2, -2),
    Sketcher.Constraint("Symmetric", 41, 2, 50, 2, -2),
    Sketcher.Constraint("Symmetric", 39, 2, 52, 2, -2),
    Sketcher.Constraint("Symmetric", 37, 2, 54, 2, -2),
    Sketcher.Constraint("Horizontal", 7, 2, 10, 2),
    Sketcher.Constraint("Horizontal", 5, 2, 12, 2),
    Sketcher.Constraint("Horizontal", 3, 2, 14, 2),
    Sketcher.Constraint("Horizontal", 28, 2, 32, 2),
    Sketcher.Constraint("Horizontal", 30, 2, 34, 2),
    Sketcher.Constraint("Horizontal", 33, 2, 36, 2),
    Sketcher.Constraint("Horizontal", 26, 2, 38, 2),
    Sketcher.Constraint("Horizontal", 24, 2, 40, 2),
    Sketcher.Constraint("Horizontal", 39, 2, 42, 2),
    Sketcher.Constraint("Vertical", 4, 2, 7, 2),
    Sketcher.Constraint("Vertical", 10, 2, 13, 2),
    Sketcher.Constraint("Vertical", 36, 2, 39, 2),
    Sketcher.Constraint("Vertical", 34, 2, 41, 2),
    Sketcher.Constraint("Equal", 7, 11),
    Sketcher.Constraint("Equal", 3, 15),
    Sketcher.Constraint("Equal", 28, 33),
    Sketcher.Constraint("Equal", 24, 35),
    Sketcher.Constraint("Equal", 33, 37),
    Sketcher.Constraint("Equal", 51, 6),
    Sketcher.Constraint("Equal", 4, 8),
    Sketcher.Constraint("DistanceX", 1, 1, 1, 2, 20.0),
    Sketcher.Constraint("DistanceX", 3, 2, 3, 1, 8.0),
    Sketcher.Constraint("DistanceY", 1, 2, 4, 2, 8.0),
    Sketcher.Constraint("DistanceY", 3, 2, 8, 2, 10.0),
    Sketcher.Constraint("DistanceX", 32, 2, 37, 2, 8.0),
    Sketcher.Constraint("DistanceX", 0, 2, -1, 1, 85.0),
    Sketcher.Constraint("DistanceY", 0, 2, -1, 1, 30.0),
    Sketcher.Constraint("DistanceX", 32, 2, -1, 1, 119.0),
])
sketch8.setExpression("Constraints[146]", "Params.sketch8_width")
sketch8.setExpression("Constraints[147]", "Params.sketch8_width2")
pocket3 = body.newObject("PartDesign::Pocket", "Pocket002")
pocket3.Profile = sketch8
pocket3.setExpression("Length", "Params.pocket3_length")

# Sketch on XY plane
sketch9 = body.newObject("Sketcher::SketchObject", "Sketch008")
sketch9.AttachmentSupport = (doc.getObject("XY_Plane"), [""])
sketch9.MapMode = "FlatFace"
sketch9.AttachmentOffset = App.Placement(V(0, 0, 5), App.Rotation())
add_polygon(sketch9, [(-40, -10), (-35, -10), (-35, 10), (-40, 10)])  # lines 0-3
add_polygon(sketch9, [(35, -10), (40, -10), (40, 10), (35, 10)])  # lines 4-7
sketch9.addGeometry(Part.Circle(V(-37.5, 16, 0), V(0, 0, 1), 2), False)  # 8
sketch9.addGeometry(Part.Circle(V(-37.5, -16, 0), V(0, 0, 1), 2), False)  # 9
sketch9.addGeometry(Part.Circle(V(37.5, 16, 0), V(0, 0, 1), 2), False)  # 10
sketch9.addGeometry(Part.Circle(V(37.5, -16, 0), V(0, 0, 1), 2), False)  # 11
sketch9.addConstraint([
    Sketcher.Constraint("Horizontal", 0),
    Sketcher.Constraint("Vertical", 1),
    Sketcher.Constraint("Horizontal", 2),
    Sketcher.Constraint("Vertical", 3),
    Sketcher.Constraint("Horizontal", 4),
    Sketcher.Constraint("Vertical", 5),
    Sketcher.Constraint("Horizontal", 6),
    Sketcher.Constraint("Vertical", 7),
    Sketcher.Constraint("Equal", 8, 9),
    Sketcher.Constraint("Equal", 9, 10),
    Sketcher.Constraint("Equal", 10, 11),
    Sketcher.Constraint("Symmetric", 9, 3, 10, 3, -1, 1),
    Sketcher.Constraint("Symmetric", 8, 3, 11, 3, -1, 1),
    Sketcher.Constraint("Symmetric", 2, 2, 4, 2, -1, 1),
    Sketcher.Constraint("Symmetric", 0, 2, 6, 2, -1, 1),
    Sketcher.Constraint("Symmetric", 8, 3, 10, 3, -2),
    Sketcher.Constraint("Horizontal", 3, 2, 4, 2),
    Sketcher.Constraint("Diameter", 8, 4.0),
    Sketcher.Constraint("DistanceX", 0, 1, 0, 2, 5.0),
    Sketcher.Constraint("DistanceY", 1, 1, 1, 2, 20.0),
    Sketcher.Constraint("DistanceY", 9, 3, 0, 2, 6.0),
    Sketcher.Constraint("DistanceX", 0, 2, -1, 1, 35.0),
    Sketcher.Constraint("DistanceX", 8, 3, 10, 3, 75.0),
])
sketch9.setExpression("Constraints[25]", "Params.sketch9_diameter")
sketch9.setExpression("Constraints[26]", "Params.sketch9_width")
sketch9.setExpression("Constraints[27]", "Params.sketch9_height")
pocket4 = body.newObject("PartDesign::Pocket", "Pocket003")
pocket4.Profile = sketch9
pocket4.setExpression("Length", "Params.pocket4_length")

# Sketch on XY plane
sketch10 = body.newObject("Sketcher::SketchObject", "Sketch009")
sketch10.AttachmentSupport = (doc.getObject("XY_Plane"), [""])
sketch10.MapMode = "FlatFace"
sketch10.AttachmentOffset = App.Placement(V(0, 0, 5), App.Rotation())
add_polygon(sketch10, [(-130, -10), (-130, 15), (-133.5, 15), (-133.5, -10)])  # lines 0-3
add_polygon(sketch10, [(133.5, 15), (130, 15), (130, -10), (133.5, -10)])  # lines 4-7
sketch10.addConstraint([
    Sketcher.Constraint("Vertical", 0),
    Sketcher.Constraint("Horizontal", 1),
    Sketcher.Constraint("Vertical", 2),
    Sketcher.Constraint("Horizontal", 3),
    Sketcher.Constraint("Horizontal", 4),
    Sketcher.Constraint("Vertical", 5),
    Sketcher.Constraint("Horizontal", 6),
    Sketcher.Constraint("Vertical", 7),
    Sketcher.Constraint("Symmetric", 0, 2, 4, 2, -2),
    Sketcher.Constraint("Symmetric", 2, 2, 6, 2, -2),
    Sketcher.Constraint("DistanceY", 0, 1, 0, 2, 25.0),
    Sketcher.Constraint("DistanceX", 1, 2, 1, 1, 3.5),
    Sketcher.Constraint("DistanceY", 2, 2, -1, 1, 10.0),
    Sketcher.Constraint("DistanceX", 0, 2, -1, 1, 130.0),
])
sketch10.setExpression("Constraints[18]", "Params.sketch10_height")
sketch10.setExpression("Constraints[19]", "Params.sketch10_width")
pad6 = body.newObject("PartDesign::Pad", "Pad005")
pad6.Profile = sketch10
pad6.setExpression("Length", "Params.pad6_length")
pad6.Reversed = True

doc.recompute()
